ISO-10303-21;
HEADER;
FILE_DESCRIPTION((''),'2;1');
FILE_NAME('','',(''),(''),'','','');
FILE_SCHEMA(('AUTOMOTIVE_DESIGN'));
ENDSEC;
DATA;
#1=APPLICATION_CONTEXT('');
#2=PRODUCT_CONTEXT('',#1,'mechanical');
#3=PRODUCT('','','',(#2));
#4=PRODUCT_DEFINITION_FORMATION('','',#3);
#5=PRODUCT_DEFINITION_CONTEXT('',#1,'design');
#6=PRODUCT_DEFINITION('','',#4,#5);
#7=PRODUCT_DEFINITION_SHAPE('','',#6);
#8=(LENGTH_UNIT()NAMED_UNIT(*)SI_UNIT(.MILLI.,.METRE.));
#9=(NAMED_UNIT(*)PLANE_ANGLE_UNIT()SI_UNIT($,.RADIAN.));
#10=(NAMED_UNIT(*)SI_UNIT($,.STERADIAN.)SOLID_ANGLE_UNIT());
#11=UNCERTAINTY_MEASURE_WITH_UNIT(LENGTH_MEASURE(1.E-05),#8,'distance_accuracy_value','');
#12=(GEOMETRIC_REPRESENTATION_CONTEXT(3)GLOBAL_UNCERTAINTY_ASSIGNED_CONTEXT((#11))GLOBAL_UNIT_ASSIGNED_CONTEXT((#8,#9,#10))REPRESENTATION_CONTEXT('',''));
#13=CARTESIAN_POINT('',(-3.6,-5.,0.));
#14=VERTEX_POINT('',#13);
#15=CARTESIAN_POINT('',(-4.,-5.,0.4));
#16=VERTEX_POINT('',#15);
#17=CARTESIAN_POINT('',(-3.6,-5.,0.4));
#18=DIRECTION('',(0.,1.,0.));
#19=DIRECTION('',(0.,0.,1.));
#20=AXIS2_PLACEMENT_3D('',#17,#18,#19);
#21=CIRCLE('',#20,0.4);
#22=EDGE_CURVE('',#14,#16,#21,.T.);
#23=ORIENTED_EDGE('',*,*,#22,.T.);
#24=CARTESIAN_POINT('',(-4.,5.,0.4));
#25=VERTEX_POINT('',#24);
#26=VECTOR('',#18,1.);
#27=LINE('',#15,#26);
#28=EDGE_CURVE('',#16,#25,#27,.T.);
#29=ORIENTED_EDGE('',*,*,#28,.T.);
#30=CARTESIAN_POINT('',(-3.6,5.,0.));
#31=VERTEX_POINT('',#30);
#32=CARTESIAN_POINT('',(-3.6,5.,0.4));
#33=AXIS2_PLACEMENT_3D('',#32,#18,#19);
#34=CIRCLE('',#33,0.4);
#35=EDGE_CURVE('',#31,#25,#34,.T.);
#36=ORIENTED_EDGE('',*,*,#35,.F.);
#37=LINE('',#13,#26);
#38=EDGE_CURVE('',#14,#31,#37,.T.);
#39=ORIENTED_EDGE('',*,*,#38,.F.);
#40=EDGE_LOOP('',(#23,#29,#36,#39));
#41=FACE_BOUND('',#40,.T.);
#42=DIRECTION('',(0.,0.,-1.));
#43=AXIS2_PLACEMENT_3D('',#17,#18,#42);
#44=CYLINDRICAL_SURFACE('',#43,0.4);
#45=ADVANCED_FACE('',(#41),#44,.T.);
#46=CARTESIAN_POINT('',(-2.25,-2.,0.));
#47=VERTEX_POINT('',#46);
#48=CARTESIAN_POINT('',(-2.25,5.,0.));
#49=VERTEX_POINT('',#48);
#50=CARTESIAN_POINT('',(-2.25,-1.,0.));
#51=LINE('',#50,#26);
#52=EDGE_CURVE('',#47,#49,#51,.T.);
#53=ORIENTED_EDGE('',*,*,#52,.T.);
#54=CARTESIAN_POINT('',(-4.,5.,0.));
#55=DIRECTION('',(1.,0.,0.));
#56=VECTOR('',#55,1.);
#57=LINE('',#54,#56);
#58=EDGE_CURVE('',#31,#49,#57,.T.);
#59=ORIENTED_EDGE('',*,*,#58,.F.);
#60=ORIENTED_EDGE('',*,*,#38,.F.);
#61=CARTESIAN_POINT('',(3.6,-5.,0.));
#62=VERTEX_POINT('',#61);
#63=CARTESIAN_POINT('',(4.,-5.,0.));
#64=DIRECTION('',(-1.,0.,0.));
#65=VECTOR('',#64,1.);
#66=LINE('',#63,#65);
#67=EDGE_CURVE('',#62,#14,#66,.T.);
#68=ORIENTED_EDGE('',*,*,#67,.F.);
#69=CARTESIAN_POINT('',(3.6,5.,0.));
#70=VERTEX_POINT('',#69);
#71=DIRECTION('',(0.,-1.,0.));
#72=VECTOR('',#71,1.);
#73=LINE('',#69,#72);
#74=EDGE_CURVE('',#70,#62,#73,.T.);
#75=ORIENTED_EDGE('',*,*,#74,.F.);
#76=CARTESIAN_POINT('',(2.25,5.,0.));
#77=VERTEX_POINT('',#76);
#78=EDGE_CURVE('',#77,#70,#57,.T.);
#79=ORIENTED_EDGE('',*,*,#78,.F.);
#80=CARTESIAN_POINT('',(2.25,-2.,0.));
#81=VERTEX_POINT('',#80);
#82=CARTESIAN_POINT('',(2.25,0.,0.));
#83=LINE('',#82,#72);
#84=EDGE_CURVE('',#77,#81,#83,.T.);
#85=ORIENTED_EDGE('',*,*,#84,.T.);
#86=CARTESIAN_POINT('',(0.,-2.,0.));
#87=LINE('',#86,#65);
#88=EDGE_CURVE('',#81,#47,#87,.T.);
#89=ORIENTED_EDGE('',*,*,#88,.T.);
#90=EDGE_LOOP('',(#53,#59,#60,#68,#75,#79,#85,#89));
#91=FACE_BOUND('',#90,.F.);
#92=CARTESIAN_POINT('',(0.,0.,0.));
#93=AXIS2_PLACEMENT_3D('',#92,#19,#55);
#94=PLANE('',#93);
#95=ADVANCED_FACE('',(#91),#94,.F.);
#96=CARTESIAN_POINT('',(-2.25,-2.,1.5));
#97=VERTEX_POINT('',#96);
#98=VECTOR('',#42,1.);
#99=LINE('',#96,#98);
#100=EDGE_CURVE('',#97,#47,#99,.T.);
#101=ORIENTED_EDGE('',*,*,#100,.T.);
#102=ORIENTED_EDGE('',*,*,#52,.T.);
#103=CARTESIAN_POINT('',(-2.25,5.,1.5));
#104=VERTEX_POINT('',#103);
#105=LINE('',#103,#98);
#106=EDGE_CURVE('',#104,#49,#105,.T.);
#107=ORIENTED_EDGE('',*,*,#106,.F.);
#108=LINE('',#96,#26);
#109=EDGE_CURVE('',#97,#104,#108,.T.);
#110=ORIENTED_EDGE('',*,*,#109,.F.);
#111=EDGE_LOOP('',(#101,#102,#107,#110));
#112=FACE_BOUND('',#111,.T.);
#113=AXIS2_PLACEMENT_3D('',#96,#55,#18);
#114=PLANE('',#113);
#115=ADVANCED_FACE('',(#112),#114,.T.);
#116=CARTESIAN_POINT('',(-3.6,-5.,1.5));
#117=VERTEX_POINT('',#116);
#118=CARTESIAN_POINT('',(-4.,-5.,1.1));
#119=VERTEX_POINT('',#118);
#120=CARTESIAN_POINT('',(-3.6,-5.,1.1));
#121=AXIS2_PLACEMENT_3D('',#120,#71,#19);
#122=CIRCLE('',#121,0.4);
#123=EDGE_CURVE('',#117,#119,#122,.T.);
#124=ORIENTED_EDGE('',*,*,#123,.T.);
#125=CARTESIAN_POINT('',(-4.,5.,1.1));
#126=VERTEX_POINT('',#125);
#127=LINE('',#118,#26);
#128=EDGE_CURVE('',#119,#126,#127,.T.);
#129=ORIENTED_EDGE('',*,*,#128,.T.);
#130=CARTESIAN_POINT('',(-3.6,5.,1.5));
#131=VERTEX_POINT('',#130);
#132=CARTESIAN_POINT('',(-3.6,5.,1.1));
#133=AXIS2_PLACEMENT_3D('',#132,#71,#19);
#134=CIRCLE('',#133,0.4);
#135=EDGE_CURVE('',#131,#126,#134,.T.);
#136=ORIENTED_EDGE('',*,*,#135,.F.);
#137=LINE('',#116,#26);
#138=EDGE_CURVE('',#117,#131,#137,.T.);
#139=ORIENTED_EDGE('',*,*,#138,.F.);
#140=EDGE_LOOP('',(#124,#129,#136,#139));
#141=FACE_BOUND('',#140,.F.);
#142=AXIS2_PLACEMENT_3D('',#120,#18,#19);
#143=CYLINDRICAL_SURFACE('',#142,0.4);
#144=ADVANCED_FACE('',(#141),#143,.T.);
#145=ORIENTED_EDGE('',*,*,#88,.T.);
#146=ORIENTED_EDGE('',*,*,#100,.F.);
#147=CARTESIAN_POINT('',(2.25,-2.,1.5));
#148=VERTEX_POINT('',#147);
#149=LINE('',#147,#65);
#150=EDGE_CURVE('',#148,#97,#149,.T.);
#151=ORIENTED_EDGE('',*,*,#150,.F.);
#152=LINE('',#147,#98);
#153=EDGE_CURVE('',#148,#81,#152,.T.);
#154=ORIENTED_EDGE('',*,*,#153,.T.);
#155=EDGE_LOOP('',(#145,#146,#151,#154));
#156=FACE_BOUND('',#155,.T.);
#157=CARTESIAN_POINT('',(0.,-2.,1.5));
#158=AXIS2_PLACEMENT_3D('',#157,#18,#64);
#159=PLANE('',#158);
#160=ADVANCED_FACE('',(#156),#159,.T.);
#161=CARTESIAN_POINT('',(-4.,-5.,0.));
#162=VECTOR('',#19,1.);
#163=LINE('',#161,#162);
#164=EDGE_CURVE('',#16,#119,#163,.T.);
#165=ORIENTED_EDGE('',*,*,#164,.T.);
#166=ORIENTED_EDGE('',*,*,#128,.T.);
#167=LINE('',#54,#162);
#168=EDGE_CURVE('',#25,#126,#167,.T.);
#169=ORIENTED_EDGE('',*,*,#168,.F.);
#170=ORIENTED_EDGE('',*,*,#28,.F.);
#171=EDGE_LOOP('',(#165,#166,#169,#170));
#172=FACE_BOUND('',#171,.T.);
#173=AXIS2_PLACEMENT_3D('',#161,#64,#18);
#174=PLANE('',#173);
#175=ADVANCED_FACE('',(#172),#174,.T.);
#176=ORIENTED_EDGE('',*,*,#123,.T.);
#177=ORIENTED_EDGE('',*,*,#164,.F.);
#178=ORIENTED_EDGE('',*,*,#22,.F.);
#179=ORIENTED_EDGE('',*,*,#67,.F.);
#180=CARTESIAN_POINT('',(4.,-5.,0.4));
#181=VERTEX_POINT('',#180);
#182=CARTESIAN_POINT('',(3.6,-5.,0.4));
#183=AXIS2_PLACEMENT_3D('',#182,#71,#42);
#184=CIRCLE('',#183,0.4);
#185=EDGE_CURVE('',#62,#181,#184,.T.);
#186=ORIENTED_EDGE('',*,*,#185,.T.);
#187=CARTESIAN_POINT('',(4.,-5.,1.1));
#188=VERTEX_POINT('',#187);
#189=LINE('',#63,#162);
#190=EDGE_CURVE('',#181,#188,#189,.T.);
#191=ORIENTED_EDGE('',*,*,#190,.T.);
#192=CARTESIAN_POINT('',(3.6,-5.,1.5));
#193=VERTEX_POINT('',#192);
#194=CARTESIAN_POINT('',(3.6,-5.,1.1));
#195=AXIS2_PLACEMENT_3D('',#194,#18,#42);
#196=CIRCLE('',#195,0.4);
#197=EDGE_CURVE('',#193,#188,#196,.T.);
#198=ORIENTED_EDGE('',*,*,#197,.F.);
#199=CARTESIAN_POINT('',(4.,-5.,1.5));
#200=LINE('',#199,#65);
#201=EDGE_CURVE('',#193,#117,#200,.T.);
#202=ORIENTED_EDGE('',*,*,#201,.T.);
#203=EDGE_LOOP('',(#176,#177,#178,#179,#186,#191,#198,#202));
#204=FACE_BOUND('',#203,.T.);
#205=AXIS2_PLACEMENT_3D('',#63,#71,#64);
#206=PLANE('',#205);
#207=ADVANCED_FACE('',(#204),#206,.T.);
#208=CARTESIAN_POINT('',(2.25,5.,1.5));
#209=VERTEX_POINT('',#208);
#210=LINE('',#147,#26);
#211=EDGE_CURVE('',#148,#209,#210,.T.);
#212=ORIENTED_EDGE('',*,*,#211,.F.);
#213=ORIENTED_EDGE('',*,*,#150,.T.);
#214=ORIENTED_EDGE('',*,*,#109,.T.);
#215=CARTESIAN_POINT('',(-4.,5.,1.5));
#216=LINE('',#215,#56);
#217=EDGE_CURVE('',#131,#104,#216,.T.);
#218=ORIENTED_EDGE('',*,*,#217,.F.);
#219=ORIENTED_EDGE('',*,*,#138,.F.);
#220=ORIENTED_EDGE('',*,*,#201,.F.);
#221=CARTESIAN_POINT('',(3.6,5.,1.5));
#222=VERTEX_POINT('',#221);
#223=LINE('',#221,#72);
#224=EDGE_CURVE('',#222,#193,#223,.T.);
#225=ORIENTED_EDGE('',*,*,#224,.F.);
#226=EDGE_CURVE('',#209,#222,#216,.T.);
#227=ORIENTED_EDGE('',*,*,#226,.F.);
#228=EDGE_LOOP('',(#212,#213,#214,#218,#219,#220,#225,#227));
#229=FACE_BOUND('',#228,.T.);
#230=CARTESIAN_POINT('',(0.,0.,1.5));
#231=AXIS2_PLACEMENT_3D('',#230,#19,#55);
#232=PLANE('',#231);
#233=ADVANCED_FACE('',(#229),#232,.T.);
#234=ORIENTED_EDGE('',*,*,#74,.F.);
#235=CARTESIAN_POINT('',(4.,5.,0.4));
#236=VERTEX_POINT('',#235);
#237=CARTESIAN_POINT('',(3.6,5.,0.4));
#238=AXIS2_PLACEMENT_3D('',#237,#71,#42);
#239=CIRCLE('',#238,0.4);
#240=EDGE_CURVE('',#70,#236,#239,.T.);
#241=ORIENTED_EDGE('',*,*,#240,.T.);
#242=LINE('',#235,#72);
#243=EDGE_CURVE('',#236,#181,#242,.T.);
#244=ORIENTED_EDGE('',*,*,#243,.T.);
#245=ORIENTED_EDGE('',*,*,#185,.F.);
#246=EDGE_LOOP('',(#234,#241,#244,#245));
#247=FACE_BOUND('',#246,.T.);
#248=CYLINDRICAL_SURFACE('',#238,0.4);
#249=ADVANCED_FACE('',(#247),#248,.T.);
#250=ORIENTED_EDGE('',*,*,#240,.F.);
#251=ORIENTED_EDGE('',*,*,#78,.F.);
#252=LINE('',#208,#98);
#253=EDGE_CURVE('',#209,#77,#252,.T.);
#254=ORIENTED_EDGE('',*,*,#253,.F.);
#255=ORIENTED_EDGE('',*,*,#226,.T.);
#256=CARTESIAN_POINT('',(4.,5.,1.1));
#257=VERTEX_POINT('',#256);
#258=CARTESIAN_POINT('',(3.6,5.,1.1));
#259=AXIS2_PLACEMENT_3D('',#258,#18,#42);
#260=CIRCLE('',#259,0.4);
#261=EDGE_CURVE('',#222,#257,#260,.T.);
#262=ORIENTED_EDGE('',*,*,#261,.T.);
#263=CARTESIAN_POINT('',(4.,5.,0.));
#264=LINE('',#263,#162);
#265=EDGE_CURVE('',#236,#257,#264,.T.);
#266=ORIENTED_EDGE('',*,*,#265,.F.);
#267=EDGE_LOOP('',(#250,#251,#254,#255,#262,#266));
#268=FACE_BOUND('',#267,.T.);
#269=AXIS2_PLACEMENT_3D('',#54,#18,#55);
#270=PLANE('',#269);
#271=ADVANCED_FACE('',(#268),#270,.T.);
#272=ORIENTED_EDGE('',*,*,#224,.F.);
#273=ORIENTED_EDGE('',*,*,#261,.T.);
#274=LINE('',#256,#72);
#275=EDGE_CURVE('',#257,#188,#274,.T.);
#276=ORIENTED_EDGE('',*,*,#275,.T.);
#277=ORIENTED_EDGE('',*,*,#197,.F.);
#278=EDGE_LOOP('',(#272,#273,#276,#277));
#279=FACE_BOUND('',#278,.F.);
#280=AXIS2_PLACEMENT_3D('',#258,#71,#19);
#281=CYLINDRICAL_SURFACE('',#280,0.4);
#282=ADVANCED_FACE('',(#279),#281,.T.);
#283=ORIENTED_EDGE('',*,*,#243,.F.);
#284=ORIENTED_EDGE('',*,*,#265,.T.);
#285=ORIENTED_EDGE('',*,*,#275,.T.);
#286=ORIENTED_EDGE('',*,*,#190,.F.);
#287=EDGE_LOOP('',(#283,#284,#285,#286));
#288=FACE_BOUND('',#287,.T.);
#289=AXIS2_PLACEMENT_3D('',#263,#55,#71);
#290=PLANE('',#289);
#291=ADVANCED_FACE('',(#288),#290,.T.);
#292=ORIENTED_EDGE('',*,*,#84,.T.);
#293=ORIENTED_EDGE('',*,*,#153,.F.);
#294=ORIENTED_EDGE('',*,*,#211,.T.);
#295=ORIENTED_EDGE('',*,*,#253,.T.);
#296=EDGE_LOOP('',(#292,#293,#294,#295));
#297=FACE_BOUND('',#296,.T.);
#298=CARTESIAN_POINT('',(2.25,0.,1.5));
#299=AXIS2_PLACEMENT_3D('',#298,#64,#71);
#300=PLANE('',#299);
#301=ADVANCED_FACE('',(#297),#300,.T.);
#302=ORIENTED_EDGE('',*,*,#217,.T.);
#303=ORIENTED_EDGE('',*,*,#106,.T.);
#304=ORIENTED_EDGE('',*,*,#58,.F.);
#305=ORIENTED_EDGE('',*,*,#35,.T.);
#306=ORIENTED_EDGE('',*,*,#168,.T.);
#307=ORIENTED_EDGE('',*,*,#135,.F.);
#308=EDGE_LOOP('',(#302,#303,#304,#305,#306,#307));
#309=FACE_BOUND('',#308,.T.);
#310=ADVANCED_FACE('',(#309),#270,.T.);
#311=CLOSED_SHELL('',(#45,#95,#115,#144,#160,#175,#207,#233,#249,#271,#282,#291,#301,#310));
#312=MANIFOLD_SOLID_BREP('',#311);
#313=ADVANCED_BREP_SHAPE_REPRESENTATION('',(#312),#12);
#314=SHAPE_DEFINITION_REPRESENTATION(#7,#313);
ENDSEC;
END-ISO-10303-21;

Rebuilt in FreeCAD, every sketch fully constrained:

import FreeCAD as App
import Part
import Sketcher

V = App.Vector
Q = App.Units.Quantity


def edges_at(feature, points):
    """Names of the edges that pass closest to the given points."""
    edges = feature.Shape.Edges
    near = lambda p: min(range(len(edges)), key=lambda i: edges[i].distToShape(Part.Vertex(*p))[0])
    return sorted({f"Edge{near(p) + 1}" for p in points})

doc = App.newDocument("Part")
body = doc.addObject("PartDesign::Body", "Body")

sketch1 = doc.addObject("Sketcher::SketchObject", "Sketch")
body.addObject(sketch1)
sketch1.AttachmentSupport = (doc.XY_Plane, [""])
sketch1.MapMode = "FlatFace"
sketch1.addGeometry(Part.LineSegment(V(4, 5, 0), V(-4, 5, 0)), False)
sketch1.addGeometry(Part.LineSegment(V(-4, 5, 0), V(-4, -5, 0)), False)
sketch1.addGeometry(Part.LineSegment(V(-4, -5, 0), V(4, -5, 0)), False)
sketch1.addGeometry(Part.LineSegment(V(4, -5, 0), V(4, 5, 0)), False)
sketch1.addConstraint(Sketcher.Constraint("Coincident", 0, 2, 1, 1))
sketch1.addConstraint(Sketcher.Constraint("Coincident", 1, 2, 2, 1))
sketch1.addConstraint(Sketcher.Constraint("Coincident", 2, 2, 3, 1))
sketch1.addConstraint(Sketcher.Constraint("Coincident", 3, 2, 0, 1))
sketch1.addConstraint(Sketcher.Constraint("Horizontal", 0))
sketch1.addConstraint(Sketcher.Constraint("Vertical", 1))
sketch1.addConstraint(Sketcher.Constraint("Horizontal", 2))
sketch1.addConstraint(Sketcher.Constraint("Vertical", 3))
sketch1.addConstraint(Sketcher.Constraint("Symmetric", 0, 2, 2, 2, -1, 1))
sketch1.addConstraint(Sketcher.Constraint("DistanceX", 0, 2, 0, 1, Q("8 mm")))
sketch1.addConstraint(Sketcher.Constraint("DistanceY", 1, 2, 1, 1, Q("10 mm")))
pad1 = doc.addObject("PartDesign::Pad", "Pad")
body.addObject(pad1)
pad1.Profile = sketch1
pad1.Length = 1.5

sketch2 = doc.addObject("Sketcher::SketchObject", "Sketch001")
body.addObject(sketch2)
sketch2.AttachmentSupport = (doc.XY_Plane, [""])
sketch2.MapMode = "FlatFace"
sketch2.AttachmentOffset = App.Placement(V(0, 0, 1.5), App.Rotation())
sketch2.addGeometry(Part.LineSegment(V(-2.25, -2, 0), V(2.25, -2, 0)), False)
sketch2.addGeometry(Part.LineSegment(V(2.25, -2, 0), V(2.25, 5, 0)), False)
sketch2.addGeometry(Part.LineSegment(V(2.25, 5, 0), V(-2.25, 5, 0)), False)
sketch2.addGeometry(Part.LineSegment(V(-2.25, 5, 0), V(-2.25, -2, 0)), False)
sketch2.addConstraint(Sketcher.Constraint("Coincident", 0, 2, 1, 1))
sketch2.addConstraint(Sketcher.Constraint("Coincident", 1, 2, 2, 1))
sketch2.addConstraint(Sketcher.Constraint("Coincident", 2, 2, 3, 1))
sketch2.addConstraint(Sketcher.Constraint("Coincident", 3, 2, 0, 1))
sketch2.addConstraint(Sketcher.Constraint("Horizontal", 0))
sketch2.addConstraint(Sketcher.Constraint("Vertical", 1))
sketch2.addConstraint(Sketcher.Constraint("Horizontal", 2))
sketch2.addConstraint(Sketcher.Constraint("Vertical", 3))
sketch2.addConstraint(Sketcher.Constraint("DistanceY", 1, 1, 1, 2, Q("7 mm")))
sketch2.addConstraint(Sketcher.Constraint("DistanceX", 0, 1, 0, 2, Q("4.5 mm")))
sketch2.addConstraint(Sketcher.Constraint("DistanceY", 0, 2, -1, 1, Q("2 mm")))
sketch2.addConstraint(Sketcher.Constraint("DistanceX", -1, 1, 0, 2, Q("2.25 mm")))
pocket1 = doc.addObject("PartDesign::Pocket", "Pocket")
body.addObject(pocket1)
pocket1.Profile = sketch2
pocket1.Type = "ThroughAll"
doc.recompute()

fillet = doc.addObject("PartDesign::Fillet", "Fillet")
body.addObject(fillet)
fillet.Base = (pocket1, edges_at(pocket1, [
    (-4, 0, 1.5),
    (-4, 0, 0),
    (4, 0, 0),
    (4, 0, 1.5),
]))
fillet.Radius = 0.4

doc.recompute()
